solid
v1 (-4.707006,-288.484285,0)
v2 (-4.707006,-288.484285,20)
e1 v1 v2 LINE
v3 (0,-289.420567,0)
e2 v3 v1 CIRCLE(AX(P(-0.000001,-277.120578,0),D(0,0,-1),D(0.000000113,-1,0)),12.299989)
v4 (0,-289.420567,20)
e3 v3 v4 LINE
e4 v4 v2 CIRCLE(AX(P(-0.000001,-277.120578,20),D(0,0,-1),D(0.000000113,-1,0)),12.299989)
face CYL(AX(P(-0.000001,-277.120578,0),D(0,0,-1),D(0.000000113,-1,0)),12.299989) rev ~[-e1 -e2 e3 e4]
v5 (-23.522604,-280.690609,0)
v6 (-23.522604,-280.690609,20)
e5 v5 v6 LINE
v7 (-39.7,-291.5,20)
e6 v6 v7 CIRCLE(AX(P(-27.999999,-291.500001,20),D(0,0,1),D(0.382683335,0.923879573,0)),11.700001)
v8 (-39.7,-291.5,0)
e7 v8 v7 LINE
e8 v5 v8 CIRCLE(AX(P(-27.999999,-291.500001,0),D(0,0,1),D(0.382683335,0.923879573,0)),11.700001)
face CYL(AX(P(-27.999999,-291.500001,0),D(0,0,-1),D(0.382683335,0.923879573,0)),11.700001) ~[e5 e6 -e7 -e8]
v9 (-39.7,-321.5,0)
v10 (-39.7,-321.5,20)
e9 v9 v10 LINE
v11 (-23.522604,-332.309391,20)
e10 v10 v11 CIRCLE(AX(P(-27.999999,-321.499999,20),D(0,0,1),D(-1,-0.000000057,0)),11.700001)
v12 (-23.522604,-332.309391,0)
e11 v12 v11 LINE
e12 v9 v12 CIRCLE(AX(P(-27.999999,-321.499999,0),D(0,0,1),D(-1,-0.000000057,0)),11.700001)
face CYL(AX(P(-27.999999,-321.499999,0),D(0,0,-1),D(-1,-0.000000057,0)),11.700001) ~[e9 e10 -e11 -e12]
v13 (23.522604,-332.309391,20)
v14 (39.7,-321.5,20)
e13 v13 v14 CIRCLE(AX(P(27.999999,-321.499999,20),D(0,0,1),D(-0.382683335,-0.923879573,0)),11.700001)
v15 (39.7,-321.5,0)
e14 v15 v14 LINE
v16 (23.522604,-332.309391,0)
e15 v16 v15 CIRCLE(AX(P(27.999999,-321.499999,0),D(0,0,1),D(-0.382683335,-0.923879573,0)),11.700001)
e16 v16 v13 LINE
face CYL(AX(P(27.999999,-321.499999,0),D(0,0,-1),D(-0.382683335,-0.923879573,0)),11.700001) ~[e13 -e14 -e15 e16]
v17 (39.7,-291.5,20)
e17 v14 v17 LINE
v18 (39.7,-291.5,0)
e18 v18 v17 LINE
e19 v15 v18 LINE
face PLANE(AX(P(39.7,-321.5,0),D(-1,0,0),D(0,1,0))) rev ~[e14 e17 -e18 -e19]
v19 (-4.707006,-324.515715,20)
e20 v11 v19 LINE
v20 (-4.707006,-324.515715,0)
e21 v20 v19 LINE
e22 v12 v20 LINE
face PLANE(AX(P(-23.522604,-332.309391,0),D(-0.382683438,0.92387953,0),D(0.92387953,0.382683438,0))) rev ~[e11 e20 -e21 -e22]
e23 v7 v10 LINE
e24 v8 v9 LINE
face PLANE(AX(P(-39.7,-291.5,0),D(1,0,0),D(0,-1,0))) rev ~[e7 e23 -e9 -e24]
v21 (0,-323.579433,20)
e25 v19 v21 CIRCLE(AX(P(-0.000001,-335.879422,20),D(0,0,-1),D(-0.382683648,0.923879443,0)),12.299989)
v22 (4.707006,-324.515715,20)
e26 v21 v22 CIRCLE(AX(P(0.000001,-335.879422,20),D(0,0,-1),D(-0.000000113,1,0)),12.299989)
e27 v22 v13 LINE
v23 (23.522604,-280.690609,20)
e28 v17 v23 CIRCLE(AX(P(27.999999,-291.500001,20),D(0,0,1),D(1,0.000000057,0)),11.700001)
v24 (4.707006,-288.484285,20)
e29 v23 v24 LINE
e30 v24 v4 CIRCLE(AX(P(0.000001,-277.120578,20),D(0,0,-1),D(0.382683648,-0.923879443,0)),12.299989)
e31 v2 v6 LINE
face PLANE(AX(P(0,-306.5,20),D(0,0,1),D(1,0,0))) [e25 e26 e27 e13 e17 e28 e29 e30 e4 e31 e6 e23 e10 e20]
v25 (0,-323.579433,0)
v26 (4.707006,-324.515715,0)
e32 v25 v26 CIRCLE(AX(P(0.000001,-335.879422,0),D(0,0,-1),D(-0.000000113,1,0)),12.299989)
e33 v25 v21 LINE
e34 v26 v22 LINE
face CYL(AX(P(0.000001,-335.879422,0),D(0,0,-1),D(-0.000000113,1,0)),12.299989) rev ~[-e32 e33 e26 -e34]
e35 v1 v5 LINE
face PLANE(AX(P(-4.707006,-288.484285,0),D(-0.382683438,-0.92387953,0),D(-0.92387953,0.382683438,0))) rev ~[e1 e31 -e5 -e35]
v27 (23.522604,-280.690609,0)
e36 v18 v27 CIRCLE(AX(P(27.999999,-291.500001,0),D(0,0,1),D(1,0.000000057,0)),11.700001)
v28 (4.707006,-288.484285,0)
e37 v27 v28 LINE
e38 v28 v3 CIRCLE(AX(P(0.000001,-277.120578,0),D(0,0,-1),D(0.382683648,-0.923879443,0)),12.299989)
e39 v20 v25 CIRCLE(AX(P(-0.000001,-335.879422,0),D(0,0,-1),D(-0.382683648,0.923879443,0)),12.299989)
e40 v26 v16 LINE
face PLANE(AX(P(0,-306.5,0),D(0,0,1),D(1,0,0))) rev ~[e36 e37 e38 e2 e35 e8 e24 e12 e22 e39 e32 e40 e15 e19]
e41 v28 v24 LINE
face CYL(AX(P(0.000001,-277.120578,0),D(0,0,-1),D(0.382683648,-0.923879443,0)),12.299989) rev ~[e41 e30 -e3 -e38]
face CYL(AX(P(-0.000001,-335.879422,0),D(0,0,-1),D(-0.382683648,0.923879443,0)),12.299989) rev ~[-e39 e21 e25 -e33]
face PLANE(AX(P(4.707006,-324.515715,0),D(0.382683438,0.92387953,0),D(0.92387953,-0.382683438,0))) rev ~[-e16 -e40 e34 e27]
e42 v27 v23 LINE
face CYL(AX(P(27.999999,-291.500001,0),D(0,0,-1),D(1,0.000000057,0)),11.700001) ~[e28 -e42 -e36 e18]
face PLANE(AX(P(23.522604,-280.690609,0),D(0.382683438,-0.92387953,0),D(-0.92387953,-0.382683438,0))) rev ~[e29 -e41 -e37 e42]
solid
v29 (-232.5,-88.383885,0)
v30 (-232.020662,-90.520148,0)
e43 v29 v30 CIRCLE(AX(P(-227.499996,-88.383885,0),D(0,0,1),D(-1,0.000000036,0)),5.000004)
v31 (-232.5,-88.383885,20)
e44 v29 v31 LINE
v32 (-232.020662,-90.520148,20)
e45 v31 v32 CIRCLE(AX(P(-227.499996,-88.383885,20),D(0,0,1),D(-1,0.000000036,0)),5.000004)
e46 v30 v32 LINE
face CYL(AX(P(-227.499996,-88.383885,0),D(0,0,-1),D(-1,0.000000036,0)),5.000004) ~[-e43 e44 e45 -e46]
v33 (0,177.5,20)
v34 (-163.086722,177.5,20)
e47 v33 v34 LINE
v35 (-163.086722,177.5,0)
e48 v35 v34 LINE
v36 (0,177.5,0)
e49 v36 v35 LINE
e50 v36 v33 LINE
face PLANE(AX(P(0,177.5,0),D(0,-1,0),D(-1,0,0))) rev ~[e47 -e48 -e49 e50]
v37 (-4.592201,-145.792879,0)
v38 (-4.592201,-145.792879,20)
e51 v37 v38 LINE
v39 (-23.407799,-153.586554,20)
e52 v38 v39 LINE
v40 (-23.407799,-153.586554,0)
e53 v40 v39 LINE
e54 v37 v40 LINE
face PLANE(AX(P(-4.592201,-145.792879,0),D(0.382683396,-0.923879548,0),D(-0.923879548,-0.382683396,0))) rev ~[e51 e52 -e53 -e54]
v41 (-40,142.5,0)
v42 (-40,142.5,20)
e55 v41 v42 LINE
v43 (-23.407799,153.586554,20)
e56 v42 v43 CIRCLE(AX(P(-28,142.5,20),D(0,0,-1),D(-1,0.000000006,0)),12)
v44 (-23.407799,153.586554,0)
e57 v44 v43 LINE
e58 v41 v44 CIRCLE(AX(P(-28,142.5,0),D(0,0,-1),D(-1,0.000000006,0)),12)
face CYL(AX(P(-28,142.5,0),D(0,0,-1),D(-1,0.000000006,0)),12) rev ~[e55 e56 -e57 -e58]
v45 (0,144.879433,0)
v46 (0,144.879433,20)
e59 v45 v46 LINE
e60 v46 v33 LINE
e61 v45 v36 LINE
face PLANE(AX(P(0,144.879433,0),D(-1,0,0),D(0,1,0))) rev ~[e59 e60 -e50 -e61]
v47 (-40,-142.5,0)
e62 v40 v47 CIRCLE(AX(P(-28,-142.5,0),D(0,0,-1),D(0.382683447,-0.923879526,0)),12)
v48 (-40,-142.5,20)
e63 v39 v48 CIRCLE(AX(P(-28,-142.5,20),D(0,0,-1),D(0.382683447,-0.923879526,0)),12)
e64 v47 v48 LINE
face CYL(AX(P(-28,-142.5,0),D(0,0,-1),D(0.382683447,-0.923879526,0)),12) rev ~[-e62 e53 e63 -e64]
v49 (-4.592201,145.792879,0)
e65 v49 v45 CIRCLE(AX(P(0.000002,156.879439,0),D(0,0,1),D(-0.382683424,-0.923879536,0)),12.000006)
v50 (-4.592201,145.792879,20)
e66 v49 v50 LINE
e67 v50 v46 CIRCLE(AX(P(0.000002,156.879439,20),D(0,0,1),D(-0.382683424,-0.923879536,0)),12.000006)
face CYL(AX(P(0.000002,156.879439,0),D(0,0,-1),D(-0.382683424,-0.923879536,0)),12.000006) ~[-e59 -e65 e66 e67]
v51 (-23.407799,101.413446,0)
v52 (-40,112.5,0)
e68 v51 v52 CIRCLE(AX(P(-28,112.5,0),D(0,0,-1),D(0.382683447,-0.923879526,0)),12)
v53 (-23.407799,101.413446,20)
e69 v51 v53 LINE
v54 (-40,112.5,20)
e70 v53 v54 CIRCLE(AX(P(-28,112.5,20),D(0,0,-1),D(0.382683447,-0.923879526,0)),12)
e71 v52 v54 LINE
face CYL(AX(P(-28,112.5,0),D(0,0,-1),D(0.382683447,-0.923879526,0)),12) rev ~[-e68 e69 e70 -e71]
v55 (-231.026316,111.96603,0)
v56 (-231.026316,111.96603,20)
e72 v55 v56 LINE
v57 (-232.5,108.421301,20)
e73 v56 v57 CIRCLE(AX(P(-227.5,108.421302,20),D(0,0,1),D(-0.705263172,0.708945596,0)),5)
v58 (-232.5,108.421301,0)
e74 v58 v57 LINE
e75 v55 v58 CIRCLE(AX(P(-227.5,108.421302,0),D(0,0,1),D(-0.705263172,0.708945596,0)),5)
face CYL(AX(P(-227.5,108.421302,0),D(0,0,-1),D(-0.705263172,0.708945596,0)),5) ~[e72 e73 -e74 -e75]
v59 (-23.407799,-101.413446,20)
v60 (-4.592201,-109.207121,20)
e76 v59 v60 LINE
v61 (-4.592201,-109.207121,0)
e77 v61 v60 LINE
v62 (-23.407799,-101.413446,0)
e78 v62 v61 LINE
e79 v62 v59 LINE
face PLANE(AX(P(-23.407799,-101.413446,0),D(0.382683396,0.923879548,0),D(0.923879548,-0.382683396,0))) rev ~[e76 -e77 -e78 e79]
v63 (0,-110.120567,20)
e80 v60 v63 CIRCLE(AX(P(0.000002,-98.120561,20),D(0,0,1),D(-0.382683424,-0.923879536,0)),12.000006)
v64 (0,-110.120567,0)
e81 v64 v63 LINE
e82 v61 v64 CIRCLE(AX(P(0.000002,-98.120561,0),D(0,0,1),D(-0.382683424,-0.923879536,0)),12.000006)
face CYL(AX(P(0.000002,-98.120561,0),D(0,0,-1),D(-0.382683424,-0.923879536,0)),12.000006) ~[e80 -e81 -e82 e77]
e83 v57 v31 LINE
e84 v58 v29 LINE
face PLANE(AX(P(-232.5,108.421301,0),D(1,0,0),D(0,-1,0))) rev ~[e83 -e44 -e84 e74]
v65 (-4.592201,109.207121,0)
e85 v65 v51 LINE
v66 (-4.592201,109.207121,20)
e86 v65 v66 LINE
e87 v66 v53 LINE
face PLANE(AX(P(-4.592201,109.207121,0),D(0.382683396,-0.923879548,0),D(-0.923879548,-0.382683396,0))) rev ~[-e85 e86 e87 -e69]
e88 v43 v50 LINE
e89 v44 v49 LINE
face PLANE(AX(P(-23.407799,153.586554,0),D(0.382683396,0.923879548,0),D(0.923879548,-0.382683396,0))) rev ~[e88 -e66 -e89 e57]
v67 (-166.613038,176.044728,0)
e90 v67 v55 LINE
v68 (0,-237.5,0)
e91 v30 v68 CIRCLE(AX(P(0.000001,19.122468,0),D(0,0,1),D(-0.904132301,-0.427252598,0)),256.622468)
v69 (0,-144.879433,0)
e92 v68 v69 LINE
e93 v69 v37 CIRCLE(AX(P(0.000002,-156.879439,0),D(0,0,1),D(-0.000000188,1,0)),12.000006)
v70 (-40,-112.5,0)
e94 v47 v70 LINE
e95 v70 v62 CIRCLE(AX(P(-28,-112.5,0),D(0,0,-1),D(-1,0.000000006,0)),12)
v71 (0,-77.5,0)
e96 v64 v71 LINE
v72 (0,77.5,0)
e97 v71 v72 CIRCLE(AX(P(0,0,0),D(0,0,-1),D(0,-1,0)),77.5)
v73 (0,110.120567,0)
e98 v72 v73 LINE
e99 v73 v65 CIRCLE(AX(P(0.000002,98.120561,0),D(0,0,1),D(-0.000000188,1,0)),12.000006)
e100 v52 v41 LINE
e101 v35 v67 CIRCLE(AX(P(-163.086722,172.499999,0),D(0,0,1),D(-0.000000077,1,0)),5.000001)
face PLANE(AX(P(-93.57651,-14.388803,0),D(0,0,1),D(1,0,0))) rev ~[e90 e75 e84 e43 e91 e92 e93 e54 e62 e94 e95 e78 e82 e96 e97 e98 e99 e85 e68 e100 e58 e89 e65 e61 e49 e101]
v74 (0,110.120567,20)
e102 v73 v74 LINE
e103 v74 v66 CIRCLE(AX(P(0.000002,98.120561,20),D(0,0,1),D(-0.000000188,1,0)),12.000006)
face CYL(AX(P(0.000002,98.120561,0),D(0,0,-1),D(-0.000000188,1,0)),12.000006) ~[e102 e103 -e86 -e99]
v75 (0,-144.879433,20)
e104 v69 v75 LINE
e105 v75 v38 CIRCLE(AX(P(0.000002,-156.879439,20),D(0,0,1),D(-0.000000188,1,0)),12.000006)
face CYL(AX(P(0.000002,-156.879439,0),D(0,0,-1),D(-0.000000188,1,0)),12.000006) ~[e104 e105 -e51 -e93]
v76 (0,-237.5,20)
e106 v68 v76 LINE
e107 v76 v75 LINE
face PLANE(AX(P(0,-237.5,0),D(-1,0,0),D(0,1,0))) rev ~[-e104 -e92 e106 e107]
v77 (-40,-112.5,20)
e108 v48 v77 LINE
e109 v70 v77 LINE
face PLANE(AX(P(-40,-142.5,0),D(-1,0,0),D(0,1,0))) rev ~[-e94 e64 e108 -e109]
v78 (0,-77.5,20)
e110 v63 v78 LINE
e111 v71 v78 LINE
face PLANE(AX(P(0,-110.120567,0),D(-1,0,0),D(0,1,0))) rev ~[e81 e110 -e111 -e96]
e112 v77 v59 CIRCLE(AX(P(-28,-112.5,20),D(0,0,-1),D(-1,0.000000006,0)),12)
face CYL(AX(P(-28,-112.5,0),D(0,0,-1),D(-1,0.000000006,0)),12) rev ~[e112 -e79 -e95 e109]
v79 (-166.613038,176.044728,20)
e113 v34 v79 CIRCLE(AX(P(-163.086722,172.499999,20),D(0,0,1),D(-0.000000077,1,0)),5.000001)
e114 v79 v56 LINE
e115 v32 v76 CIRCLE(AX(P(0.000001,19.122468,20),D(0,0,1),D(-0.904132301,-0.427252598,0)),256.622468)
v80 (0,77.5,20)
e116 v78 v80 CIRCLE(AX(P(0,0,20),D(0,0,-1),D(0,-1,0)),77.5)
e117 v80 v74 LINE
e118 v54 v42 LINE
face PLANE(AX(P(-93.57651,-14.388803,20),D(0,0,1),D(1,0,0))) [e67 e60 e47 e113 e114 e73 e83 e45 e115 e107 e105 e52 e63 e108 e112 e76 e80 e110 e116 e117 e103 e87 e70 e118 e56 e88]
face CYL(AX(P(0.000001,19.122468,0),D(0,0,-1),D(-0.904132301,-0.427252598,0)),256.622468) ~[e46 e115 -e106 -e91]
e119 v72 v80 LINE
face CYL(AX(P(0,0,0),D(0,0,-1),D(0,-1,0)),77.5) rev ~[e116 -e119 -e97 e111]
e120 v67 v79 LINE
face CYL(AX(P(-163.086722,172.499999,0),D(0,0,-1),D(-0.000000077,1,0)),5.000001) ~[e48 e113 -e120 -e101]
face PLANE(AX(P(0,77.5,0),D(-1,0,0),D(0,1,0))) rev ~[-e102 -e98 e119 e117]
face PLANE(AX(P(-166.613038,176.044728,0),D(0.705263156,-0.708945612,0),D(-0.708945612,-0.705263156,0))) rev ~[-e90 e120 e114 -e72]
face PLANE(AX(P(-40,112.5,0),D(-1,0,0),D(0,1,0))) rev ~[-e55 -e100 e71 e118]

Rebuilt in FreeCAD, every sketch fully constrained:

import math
import FreeCAD as App
import Part
import Sketcher

V = App.Vector
Q = App.Units.Quantity

doc = App.newDocument("Part")
body = doc.addObject("PartDesign::Body", "Body")
body.AllowCompound = True

# Sketch on XY plane
sketch1 = body.newObject("Sketcher::SketchObject", "Sketch")
sketch1.AttachmentSupport = (doc.getObject("XY_Plane"), [""])
sketch1.MapMode = "FlatFace"
sketch1.addGeometry([
    Part.LineSegment(V(0, -110.1, 0), V(0, -77.5, 0)),  # 0
    Part.ArcOfCircle(Part.Circle(V(0, 0, 0), V(0, 0, 1), 77.5), math.radians(90), math.radians(270)),  # 1
    Part.LineSegment(V(0, 77.5, 0), V(0, 110.1, 0)),  # 2
    Part.ArcOfCircle(Part.Circle(V(0, 98.1, 0), V(0, 0, 1), 12), math.radians(90), math.radians(112)),  # 3
    Part.LineSegment(V(-4.6, 109.2, 0), V(-23.4, 101.4, 0)),  # 4
    Part.ArcOfCircle(Part.Circle(V(-28, 112.5, 0), V(0, 0, 1), 12), math.radians(-180), math.radians(-67)),  # 5
    Part.LineSegment(V(-40, 112.5, 0), V(-40, 142.5, 0)),  # 6
    Part.ArcOfCircle(Part.Circle(V(-28, 142.5, 0), V(0, 0, 1), 12), math.radians(67), math.radians(180)),  # 7
    Part.LineSegment(V(-23.4, 153.6, 0), V(-4.6, 145.8, 0)),  # 8
    Part.ArcOfCircle(Part.Circle(V(0, 156.9, 0), V(0, 0, 1), 12), math.radians(-112), math.radians(-90)),  # 9
    Part.LineSegment(V(0, 144.9, 0), V(0, 177.5, 0)),  # 10
    Part.LineSegment(V(0, 177.5, 0), V(-163.1, 177.5, 0)),  # 11
    Part.ArcOfCircle(Part.Circle(V(-163.1, 172.5, 0), V(0, 0, 1), 5), math.radians(90), math.radians(135)),  # 12
    Part.LineSegment(V(-166.6, 176, 0), V(-231, 112, 0)),  # 13
    Part.ArcOfCircle(Part.Circle(V(-227.5, 108.4, 0), V(0, 0, 1), 5), math.radians(135), math.radians(180)),  # 14
    Part.LineSegment(V(-232.5, 108.4, 0), V(-232.5, -88.4, 0)),  # 15
    Part.ArcOfCircle(Part.Circle(V(-227.5, -88.4, 0), V(0, 0, 1), 5), math.radians(180), math.radians(205)),  # 16
    Part.ArcOfCircle(Part.Circle(V(0, 19.1, 0), V(0, 0, 1), 256.6), math.radians(-155), math.radians(-90)),  # 17
    Part.LineSegment(V(0, -237.5, 0), V(0, -144.9, 0)),  # 18
    Part.ArcOfCircle(Part.Circle(V(0, -156.9, 0), V(0, 0, 1), 12), math.radians(90), math.radians(112)),  # 19
    Part.LineSegment(V(-4.6, -145.8, 0), V(-23.4, -153.6, 0)),  # 20
    Part.ArcOfCircle(Part.Circle(V(-28, -142.5, 0), V(0, 0, 1), 12), math.radians(-180), math.radians(-67)),  # 21
    Part.LineSegment(V(-40, -142.5, 0), V(-40, -112.5, 0)),  # 22
    Part.ArcOfCircle(Part.Circle(V(-28, -112.5, 0), V(0, 0, 1), 12), math.radians(67), math.radians(180)),  # 23
    Part.LineSegment(V(-23.4, -101.4, 0), V(-4.6, -109.2, 0)),  # 24
    Part.ArcOfCircle(Part.Circle(V(0, -98.1, 0), V(0, 0, 1), 12), math.radians(-112), math.radians(-90)),  # 25
    Part.ArcOfCircle(Part.Circle(V(0, -277.1, 0), V(0, 0, 1), 12.3), math.radians(-90), math.radians(-67)),  # 26
    Part.ArcOfCircle(Part.Circle(V(0, -277.1, 0), V(0, 0, 1), 12.3), math.radians(-113), math.radians(-90)),  # 27
    Part.LineSegment(V(-4.7, -288.5, 0), V(-23.5, -280.7, 0)),  # 28
    Part.ArcOfCircle(Part.Circle(V(-28, -291.5, 0), V(0, 0, 1), 11.7), math.radians(68), math.radians(180)),  # 29
    Part.LineSegment(V(-39.7, -291.5, 0), V(-39.7, -321.5, 0)),  # 30
    Part.ArcOfCircle(Part.Circle(V(-28, -321.5, 0), V(0, 0, 1), 11.7), math.radians(-180), math.radians(-68)),  # 31
    Part.LineSegment(V(-23.5, -332.3, 0), V(-4.7, -324.5, 0)),  # 32
    Part.ArcOfCircle(Part.Circle(V(0, -335.9, 0), V(0, 0, 1), 12.3), math.radians(90), math.radians(113)),  # 33
    Part.ArcOfCircle(Part.Circle(V(0, -335.9, 0), V(0, 0, 1), 12.3), math.radians(67), math.radians(90)),  # 34
    Part.LineSegment(V(4.7, -324.5, 0), V(23.5, -332.3, 0)),  # 35
    Part.ArcOfCircle(Part.Circle(V(28, -321.5, 0), V(0, 0, 1), 11.7), math.radians(-112), math.radians(0)),  # 36
    Part.LineSegment(V(39.7, -321.5, 0), V(39.7, -291.5, 0)),  # 37
    Part.ArcOfCircle(Part.Circle(V(28, -291.5, 0), V(0, 0, 1), 11.7), math.radians(0), math.radians(112)),  # 38
    Part.LineSegment(V(23.5, -280.7, 0), V(4.7, -288.5, 0)),  # 39
], False)
sketch1.addConstraint([
    Sketcher.Constraint("Coincident", 0, 2, 1, 2),
    Sketcher.Constraint("Coincident", 1, 1, 2, 1),
    Sketcher.Constraint("Coincident", 2, 2, 3, 1),
    Sketcher.Constraint("Tangent", 3, 2, 4, 1),
    Sketcher.Constraint("Tangent", 4, 2, 5, 2),
    Sketcher.Constraint("Tangent", 5, 1, 6, 1),
    Sketcher.Constraint("Tangent", 6, 2, 7, 2),
    Sketcher.Constraint("Tangent", 7, 1, 8, 1),
    Sketcher.Constraint("Tangent", 8, 2, 9, 1),
    Sketcher.Constraint("Coincident", 9, 2, 10, 1),
    Sketcher.Constraint("Coincident", 10, 2, 11, 1),
    Sketcher.Constraint("Tangent", 11, 2, 12, 1),
    Sketcher.Constraint("Tangent", 12, 2, 13, 1),
    Sketcher.Constraint("Tangent", 13, 2, 14, 1),
    Sketcher.Constraint("Tangent", 14, 2, 15, 1),
    Sketcher.Constraint("Tangent", 15, 2, 16, 1),
    Sketcher.Constraint("Tangent", 16, 2, 17, 1),
    Sketcher.Constraint("Coincident", 17, 2, 18, 1),
    Sketcher.Constraint("Coincident", 18, 2, 19, 1),
    Sketcher.Constraint("Tangent", 19, 2, 20, 1),
    Sketcher.Constraint("Tangent", 20, 2, 21, 2),
    Sketcher.Constraint("Tangent", 21, 1, 22, 1),
    Sketcher.Constraint("Tangent", 22, 2, 23, 2),
    Sketcher.Constraint("Tangent", 23, 1, 24, 1),
    Sketcher.Constraint("Tangent", 24, 2, 25, 1),
    Sketcher.Constraint("Coincident", 25, 2, 0, 1),
    Sketcher.Constraint("Tangent", 26, 1, 27, 2),
    Sketcher.Constraint("Tangent", 27, 1, 28, 1),
    Sketcher.Constraint("Tangent", 28, 2, 29, 1),
    Sketcher.Constraint("Tangent", 29, 2, 30, 1),
    Sketcher.Constraint("Tangent", 30, 2, 31, 1),
    Sketcher.Constraint("Tangent", 31, 2, 32, 1),
    Sketcher.Constraint("Tangent", 32, 2, 33, 2),
    Sketcher.Constraint("Tangent", 33, 1, 34, 2),
    Sketcher.Constraint("Tangent", 34, 1, 35, 1),
    Sketcher.Constraint("Tangent", 35, 2, 36, 1),
    Sketcher.Constraint("Tangent", 36, 2, 37, 1),
    Sketcher.Constraint("Tangent", 37, 2, 38, 1),
    Sketcher.Constraint("Tangent", 38, 2, 39, 1),
    Sketcher.Constraint("Tangent", 39, 2, 26, 2),
    Sketcher.Constraint("Vertical", 0),
    Sketcher.Constraint("Vertical", 2),
    Sketcher.Constraint("Vertical", 6),
    Sketcher.Constraint("Vertical", 10),
    Sketcher.Constraint("Horizontal", 11),
    Sketcher.Constraint("Vertical", 15),
    Sketcher.Constraint("Vertical", 18),
    Sketcher.Constraint("Vertical", 22),
    Sketcher.Constraint("Vertical", 30),
    Sketcher.Constraint("Vertical", 37),
    Sketcher.Constraint("Coincident", 1, 3, -1, 1),
    Sketcher.Constraint("Equal", 5, 7),
    Sketcher.Constraint("Equal", 3, 9),
    Sketcher.Constraint("Equal", 12, 14),
    Sketcher.Constraint("Equal", 9, 19),
    Sketcher.Constraint("Equal", 7, 21),
    Sketcher.Constraint("Equal", 21, 23),
    Sketcher.Constraint("Equal", 19, 25),
    Sketcher.Constraint("Equal", 26, 27),
    Sketcher.Constraint("Equal", 29, 31),
    Sketcher.Constraint("Equal", 27, 33),
    Sketcher.Constraint("Equal", 33, 34),
    Sketcher.Constraint("Equal", 31, 36),
    Sketcher.Constraint("Equal", 36, 38),
    Sketcher.Constraint("Symmetric", 9, 3, 19, 3, -1, 1),
    Sketcher.Constraint("Symmetric", 3, 3, 25, 3, -1, 1),
    Sketcher.Constraint("Symmetric", 31, 3, 36, 3, -2),
    Sketcher.Constraint("Symmetric", 28, 2, 38, 2, -2),
    Sketcher.Constraint("Symmetric", 7, 3, 21, 3, -1),
    Sketcher.Constraint("Symmetric", 4, 2, 23, 1, -1),
    Sketcher.Constraint("PointOnObject", 17, 3, -2),
    Sketcher.Constraint("PointOnObject", 33, 3, -2),
    Sketcher.Constraint("PointOnObject", 0, 2, -2),
    Sketcher.Constraint("PointOnObject", 1, 1, -2),
    Sketcher.Constraint("PointOnObject", 9, 2, -2),
    Sketcher.Constraint("PointOnObject", 17, 2, -2),
    Sketcher.Constraint("PointOnObject", 26, 1, -2),
    Sketcher.Constraint("PointOnObject", 33, 1, -2),
    Sketcher.Constraint("Parallel", 4, 20),
    Sketcher.Constraint("Parallel", 8, 24),
    Sketcher.Constraint("Parallel", 24, 28),
    Sketcher.Constraint("Parallel", 20, 32),
    Sketcher.Constraint("Vertical", 23, 3, 29, 3),
    Sketcher.Constraint("Equal", 2, 10),
    Sketcher.Constraint("Equal", 22, 30),
    Sketcher.Constraint("Equal", 24, 28),
    Sketcher.Constraint("Radius", 5, 12.0),
    Sketcher.Constraint("Radius", 12, 5.000001),
    Sketcher.Constraint("Radius", 1, 77.5),
    Sketcher.Constraint("Radius", 29, 11.700001),
    Sketcher.Constraint("DistanceY", 6, 1, 6, 2, 30.0),
    Sketcher.Constraint("DistanceX", 5, 3, -1, 1, 28.0),
    Sketcher.Constraint("Angle", 4, Q("-157.500002 deg")),
    Sketcher.Constraint("DistanceY", -1, 1, 5, 3, 112.5),
    Sketcher.Constraint("DistanceX", 14, 3, -1, 1, 227.5),
    Sketcher.Constraint("DistanceY", 29, 3, -1, 1, 291.500001),
    Sketcher.Constraint("DistanceY", 17, 2, -1, 1, 237.5),
    Sketcher.Constraint("Radius", 17, 256.622468),
    Sketcher.Constraint("Radius", 26, 12.299989),
    Sketcher.Constraint("Radius", 16, 5.000004),
    Sketcher.Constraint("DistanceX", 11, 2, 11, 1, 163.086722),
    Sketcher.Constraint("DistanceY", -1, 1, 14, 2, 108.421301),
])
pad1 = body.newObject("PartDesign::Pad", "Pad")
pad1.Profile = sketch1
pad1.Length = 20

doc.recompute()
